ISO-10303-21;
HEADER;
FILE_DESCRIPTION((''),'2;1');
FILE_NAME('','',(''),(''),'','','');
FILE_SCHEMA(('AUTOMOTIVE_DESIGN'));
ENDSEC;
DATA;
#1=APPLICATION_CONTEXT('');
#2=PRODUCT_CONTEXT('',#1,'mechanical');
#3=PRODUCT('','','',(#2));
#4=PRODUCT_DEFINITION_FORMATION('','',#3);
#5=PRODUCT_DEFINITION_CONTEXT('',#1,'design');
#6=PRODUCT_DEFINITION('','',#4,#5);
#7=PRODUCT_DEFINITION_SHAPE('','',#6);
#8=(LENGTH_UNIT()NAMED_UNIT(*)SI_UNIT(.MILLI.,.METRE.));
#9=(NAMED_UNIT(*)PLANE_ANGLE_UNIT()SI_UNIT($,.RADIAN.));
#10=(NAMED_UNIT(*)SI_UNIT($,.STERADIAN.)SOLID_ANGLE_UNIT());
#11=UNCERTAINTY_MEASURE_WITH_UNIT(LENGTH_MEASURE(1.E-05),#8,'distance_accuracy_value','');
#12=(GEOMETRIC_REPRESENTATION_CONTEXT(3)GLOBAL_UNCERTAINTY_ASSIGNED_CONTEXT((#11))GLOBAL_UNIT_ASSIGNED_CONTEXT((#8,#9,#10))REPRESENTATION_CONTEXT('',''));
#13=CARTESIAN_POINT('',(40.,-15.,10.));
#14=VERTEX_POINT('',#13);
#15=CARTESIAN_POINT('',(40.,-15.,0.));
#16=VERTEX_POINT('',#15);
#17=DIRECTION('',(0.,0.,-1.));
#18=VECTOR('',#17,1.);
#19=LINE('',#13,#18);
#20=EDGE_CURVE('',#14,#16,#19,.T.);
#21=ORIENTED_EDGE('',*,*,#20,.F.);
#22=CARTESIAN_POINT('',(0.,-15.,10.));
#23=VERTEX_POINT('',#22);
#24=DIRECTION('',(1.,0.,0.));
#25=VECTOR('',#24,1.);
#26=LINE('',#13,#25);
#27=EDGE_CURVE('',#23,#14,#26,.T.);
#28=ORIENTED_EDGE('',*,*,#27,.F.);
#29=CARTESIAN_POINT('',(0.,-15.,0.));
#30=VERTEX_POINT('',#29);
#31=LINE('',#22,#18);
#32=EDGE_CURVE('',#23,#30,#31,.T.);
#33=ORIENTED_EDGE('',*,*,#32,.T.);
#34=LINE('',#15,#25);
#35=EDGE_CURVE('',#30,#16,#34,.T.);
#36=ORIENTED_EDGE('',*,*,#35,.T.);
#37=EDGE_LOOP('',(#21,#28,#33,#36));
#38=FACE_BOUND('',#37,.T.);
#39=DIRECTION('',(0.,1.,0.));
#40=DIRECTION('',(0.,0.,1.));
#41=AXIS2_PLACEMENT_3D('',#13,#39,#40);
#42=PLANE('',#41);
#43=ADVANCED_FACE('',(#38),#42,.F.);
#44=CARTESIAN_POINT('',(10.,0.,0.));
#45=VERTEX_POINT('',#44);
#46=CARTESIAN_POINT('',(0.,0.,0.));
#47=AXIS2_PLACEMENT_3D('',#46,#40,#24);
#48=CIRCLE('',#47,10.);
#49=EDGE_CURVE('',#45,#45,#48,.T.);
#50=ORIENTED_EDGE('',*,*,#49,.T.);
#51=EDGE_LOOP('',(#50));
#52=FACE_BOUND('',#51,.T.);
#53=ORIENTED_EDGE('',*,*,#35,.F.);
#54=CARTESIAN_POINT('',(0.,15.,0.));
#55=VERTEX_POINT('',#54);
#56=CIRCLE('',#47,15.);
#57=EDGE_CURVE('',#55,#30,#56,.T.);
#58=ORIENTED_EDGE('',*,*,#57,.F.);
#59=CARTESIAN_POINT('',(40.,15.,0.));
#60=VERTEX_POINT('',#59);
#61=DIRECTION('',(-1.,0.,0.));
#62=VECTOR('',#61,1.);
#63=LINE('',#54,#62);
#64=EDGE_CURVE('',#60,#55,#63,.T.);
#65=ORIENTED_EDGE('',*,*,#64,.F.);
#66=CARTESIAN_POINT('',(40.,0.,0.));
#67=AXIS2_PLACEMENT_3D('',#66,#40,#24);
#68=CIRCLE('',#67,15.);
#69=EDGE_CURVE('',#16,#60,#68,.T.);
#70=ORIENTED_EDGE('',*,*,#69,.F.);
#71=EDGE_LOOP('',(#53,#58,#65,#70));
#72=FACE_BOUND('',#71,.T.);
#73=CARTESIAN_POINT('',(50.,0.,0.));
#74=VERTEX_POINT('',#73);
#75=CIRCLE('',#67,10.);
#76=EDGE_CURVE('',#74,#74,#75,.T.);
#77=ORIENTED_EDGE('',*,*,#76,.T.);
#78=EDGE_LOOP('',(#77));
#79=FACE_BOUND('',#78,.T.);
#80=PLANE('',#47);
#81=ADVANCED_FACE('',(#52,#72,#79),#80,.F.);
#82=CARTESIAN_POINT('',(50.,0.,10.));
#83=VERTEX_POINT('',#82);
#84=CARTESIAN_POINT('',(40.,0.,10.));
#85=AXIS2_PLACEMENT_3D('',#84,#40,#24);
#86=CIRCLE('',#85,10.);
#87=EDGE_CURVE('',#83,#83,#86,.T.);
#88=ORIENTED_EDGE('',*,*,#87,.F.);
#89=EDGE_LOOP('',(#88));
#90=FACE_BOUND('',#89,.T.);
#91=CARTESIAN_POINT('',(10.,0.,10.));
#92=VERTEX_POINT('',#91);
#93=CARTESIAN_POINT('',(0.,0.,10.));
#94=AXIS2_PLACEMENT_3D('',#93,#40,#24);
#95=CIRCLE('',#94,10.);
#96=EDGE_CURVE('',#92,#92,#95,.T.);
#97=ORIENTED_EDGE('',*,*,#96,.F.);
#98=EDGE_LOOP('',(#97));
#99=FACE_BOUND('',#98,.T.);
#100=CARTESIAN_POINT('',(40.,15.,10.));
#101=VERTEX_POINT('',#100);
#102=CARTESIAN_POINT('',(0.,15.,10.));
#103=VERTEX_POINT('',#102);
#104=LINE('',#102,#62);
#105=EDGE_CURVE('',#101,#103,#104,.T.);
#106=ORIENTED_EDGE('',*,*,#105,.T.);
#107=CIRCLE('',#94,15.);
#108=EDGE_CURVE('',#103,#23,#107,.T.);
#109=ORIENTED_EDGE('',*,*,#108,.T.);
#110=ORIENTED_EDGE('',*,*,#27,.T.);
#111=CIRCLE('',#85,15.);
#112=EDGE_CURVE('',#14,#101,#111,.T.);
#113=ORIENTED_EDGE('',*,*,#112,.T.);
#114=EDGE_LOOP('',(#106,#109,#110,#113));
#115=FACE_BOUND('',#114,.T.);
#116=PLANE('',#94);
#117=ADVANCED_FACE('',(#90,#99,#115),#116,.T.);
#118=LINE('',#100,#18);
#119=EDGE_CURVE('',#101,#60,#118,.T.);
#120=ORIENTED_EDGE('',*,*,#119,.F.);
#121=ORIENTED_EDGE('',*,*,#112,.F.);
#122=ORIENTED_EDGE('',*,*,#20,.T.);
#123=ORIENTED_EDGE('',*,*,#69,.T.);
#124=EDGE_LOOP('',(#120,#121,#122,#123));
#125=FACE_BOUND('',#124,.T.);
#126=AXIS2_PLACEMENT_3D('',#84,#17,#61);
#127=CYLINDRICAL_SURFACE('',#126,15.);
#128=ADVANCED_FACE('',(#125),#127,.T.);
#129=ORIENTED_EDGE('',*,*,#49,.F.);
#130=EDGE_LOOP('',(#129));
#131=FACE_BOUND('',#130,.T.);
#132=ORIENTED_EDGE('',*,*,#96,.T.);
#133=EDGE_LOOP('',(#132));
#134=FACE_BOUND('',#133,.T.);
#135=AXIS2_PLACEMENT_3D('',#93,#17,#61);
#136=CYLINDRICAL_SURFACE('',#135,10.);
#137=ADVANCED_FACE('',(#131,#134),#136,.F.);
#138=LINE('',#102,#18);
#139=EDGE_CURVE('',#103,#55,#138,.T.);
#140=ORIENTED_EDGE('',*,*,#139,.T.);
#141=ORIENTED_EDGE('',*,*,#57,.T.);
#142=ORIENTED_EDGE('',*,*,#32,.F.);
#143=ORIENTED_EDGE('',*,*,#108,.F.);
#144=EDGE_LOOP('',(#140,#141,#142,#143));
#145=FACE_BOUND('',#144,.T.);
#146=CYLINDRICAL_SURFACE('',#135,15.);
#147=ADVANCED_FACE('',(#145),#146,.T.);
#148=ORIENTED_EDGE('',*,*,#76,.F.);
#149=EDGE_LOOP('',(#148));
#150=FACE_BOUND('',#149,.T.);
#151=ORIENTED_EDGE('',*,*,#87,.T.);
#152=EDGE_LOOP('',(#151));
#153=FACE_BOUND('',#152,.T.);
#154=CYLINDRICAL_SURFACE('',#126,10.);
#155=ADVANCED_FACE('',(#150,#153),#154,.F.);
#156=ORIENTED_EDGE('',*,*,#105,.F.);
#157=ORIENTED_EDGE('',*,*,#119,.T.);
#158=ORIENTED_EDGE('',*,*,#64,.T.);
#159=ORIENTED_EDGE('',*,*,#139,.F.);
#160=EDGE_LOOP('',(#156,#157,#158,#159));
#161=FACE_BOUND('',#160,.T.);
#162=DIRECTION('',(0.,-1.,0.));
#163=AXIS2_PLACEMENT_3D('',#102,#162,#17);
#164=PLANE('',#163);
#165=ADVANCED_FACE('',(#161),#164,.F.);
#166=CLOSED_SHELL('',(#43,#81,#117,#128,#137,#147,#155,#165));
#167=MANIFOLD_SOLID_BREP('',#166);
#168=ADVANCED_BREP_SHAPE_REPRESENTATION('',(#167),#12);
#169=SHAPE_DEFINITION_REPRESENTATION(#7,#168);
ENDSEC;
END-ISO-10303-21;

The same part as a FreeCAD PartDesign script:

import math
import FreeCAD as App
import Part
import Sketcher
Q = App.Units.Quantity

doc = App.newDocument("Part")
params = doc.addObject("Spreadsheet::Sheet", "Params")
for row, (alias, value) in enumerate([
    ("sketch1_diameter", "20 mm"),
    ("sketch1_radius", "15 mm"),
    ("sketch1_width", "40 mm"),
    ("pad1_length", "10 mm"),
], start=1):
    params.set(f"A{row}", alias)
    params.set(f"B{row}", "=" + value)
    params.setAlias(f"B{row}", alias)

body = doc.addObject("PartDesign::Body", "Body")

sketch1 = body.newObject("Sketcher::SketchObject", "Sketch")
sketch1.AttachmentSupport = (doc.getObject("XY_Plane"), [""])
sketch1.MapMode = "FlatFace"
sketch1.addGeometry([
    Part.LineSegment(App.Vector(40, 15, 0), App.Vector(0, 15, 0)),
    Part.ArcOfCircle(Part.Circle(App.Vector(0, 0, 0), App.Vector(0, 0, 1), 15), math.radians(90), math.radians(270)),
    Part.LineSegment(App.Vector(0, -15, 0), App.Vector(40, -15, 0)),
    Part.ArcOfCircle(Part.Circle(App.Vector(40, 0, 0), App.Vector(0, 0, 1), 15), math.radians(-90), math.radians(90)),
    Part.Circle(App.Vector(40, 0, 0), App.Vector(0, 0, 1), 10),
    Part.Circle(App.Vector(0, 0, 0), App.Vector(0, 0, 1), 10),
], False)
sketch1.addConstraint([
    Sketcher.Constraint("Tangent", 0, 2, 1, 1),
    Sketcher.Constraint("Tangent", 1, 2, 2, 1),
    Sketcher.Constraint("Tangent", 2, 2, 3, 1),
    Sketcher.Constraint("Tangent", 3, 2, 0, 1),
    Sketcher.Constraint("Horizontal", 0),
    Sketcher.Constraint("Horizontal", 2),
    Sketcher.Constraint("Coincident", 1, 3, -1, 1),
    Sketcher.Constraint("Coincident", 5, 3, -1, 1),
    Sketcher.Constraint("Coincident", 4, 3, 3, 3),
    Sketcher.Constraint("Equal", 4, 5),
    Sketcher.Constraint("Diameter", 4, Q("20 mm")),
    Sketcher.Constraint("Radius", 1, Q("15 mm")),
    Sketcher.Constraint("DistanceX", 0, 2, 0, 1, Q("40 mm")),
])
sketch1.setExpression("Constraints[10]", "Params.sketch1_diameter")
sketch1.setExpression("Constraints[11]", "Params.sketch1_radius")
sketch1.setExpression("Constraints[12]", "Params.sketch1_width")
pad1 = body.newObject("PartDesign::Pad", "Pad")
pad1.Profile = sketch1
pad1.setExpression("Length", "Params.pad1_length")

doc.recompute()
